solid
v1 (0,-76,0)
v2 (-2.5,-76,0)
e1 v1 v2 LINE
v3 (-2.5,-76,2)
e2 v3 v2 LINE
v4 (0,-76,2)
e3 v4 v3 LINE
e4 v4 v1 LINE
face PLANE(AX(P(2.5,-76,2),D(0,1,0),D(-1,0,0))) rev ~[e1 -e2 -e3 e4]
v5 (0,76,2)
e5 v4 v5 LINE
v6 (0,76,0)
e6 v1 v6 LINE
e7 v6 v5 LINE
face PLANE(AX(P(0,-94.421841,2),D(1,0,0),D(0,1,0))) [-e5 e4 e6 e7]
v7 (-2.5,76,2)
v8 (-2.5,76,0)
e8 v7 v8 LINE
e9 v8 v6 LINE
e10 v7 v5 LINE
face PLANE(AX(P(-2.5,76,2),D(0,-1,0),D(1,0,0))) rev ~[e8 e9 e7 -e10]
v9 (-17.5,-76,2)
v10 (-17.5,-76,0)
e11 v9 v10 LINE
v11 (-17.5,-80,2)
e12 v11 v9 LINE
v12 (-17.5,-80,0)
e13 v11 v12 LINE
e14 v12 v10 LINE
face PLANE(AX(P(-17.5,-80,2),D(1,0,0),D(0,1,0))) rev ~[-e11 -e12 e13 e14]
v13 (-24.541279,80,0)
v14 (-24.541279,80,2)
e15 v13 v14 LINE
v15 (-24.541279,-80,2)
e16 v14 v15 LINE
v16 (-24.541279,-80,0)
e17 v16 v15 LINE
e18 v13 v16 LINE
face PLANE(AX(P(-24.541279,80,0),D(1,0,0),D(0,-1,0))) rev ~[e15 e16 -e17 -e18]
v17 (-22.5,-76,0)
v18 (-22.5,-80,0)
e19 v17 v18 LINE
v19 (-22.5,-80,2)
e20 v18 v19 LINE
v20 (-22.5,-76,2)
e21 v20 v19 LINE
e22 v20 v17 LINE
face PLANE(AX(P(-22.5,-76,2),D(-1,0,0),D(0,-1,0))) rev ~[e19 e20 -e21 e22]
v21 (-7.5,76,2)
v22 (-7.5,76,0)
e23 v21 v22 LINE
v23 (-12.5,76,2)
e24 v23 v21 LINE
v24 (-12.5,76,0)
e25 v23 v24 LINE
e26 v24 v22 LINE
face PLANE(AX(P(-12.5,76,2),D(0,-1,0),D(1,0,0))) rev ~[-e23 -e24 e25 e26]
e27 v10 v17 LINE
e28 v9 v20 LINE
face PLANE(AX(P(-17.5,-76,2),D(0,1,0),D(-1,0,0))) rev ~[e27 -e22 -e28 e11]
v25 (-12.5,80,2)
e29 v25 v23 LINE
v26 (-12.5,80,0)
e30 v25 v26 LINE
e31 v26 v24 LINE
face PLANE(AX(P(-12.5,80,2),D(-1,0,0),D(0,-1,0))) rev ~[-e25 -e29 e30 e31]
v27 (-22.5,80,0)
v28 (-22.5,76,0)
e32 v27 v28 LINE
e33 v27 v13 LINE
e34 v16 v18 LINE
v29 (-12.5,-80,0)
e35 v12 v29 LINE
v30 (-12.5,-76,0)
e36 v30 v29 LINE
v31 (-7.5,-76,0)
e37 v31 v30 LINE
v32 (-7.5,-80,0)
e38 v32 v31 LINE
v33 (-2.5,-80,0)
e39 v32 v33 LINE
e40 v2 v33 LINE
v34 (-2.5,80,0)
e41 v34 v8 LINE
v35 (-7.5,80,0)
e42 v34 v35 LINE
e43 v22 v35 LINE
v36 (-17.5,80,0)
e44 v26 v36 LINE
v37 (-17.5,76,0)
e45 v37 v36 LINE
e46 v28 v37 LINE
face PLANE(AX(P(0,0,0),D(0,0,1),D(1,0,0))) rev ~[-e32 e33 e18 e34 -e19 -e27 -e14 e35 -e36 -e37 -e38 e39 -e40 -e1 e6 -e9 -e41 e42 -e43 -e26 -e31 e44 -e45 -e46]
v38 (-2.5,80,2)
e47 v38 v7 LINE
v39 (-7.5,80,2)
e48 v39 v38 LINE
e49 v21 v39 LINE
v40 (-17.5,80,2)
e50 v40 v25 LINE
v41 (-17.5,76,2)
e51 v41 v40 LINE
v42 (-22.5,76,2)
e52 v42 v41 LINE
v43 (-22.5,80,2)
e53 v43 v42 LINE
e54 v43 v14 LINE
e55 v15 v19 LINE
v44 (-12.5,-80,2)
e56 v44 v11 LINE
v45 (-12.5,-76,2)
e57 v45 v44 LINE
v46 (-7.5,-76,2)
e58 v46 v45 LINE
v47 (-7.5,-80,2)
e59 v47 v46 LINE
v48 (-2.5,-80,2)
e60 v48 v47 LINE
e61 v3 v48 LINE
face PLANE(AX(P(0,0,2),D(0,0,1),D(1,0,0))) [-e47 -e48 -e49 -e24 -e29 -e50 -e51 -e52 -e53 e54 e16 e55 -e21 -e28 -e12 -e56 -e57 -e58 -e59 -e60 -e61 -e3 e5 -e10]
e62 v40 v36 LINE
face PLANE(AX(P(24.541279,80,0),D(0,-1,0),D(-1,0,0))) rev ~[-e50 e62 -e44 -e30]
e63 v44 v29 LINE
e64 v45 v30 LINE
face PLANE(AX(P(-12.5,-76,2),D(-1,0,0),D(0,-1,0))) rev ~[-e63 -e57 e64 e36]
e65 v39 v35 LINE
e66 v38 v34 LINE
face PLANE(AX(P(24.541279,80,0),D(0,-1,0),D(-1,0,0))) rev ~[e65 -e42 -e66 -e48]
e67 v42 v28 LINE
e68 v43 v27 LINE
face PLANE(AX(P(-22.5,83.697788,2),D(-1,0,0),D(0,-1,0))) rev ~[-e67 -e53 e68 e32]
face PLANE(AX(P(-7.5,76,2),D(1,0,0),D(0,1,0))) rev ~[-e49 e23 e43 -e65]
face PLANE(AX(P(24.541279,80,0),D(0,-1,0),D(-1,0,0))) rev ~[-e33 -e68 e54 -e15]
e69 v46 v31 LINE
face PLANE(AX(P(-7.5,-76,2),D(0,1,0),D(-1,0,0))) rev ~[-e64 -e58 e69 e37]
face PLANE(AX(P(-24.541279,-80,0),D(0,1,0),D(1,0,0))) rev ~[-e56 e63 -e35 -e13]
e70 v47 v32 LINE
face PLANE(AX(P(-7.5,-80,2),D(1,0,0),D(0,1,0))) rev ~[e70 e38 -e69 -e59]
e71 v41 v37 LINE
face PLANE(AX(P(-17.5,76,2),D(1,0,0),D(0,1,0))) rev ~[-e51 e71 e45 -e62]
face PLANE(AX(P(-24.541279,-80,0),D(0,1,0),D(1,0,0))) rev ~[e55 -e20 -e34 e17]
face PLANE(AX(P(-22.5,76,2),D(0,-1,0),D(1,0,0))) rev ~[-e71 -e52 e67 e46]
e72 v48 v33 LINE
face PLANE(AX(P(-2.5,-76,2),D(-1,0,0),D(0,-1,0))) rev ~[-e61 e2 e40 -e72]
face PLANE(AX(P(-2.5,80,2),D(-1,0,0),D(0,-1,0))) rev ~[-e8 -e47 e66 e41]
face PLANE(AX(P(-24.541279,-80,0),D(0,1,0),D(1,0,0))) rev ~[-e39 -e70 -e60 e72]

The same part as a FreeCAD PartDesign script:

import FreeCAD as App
import Part
import Sketcher
from FreeCAD import Vector

doc = App.newDocument("Part")
params = doc.addObject("Spreadsheet::Sheet", "Params")
for row, (alias, value) in enumerate([
    ("sketch1_height", "160 mm"),
    ("pad1_length", "2 mm"),
    ("sketch2_width", "5 mm"),
    ("sketch2_height", "4 mm"),
    ("pocket1_length", "5 mm"),
    ("pocket2_length", "25 mm"),
], start=1):
    params.set(f"A{row}", alias)
    params.set(f"B{row}", "=" + value)
    params.setAlias(f"B{row}", alias)

body = doc.addObject("PartDesign::Body", "Body")

# Sketch on XY plane
sketch1 = body.newObject("Sketcher::SketchObject", "Sketch")
sketch1.AttachmentSupport = (doc.getObject("XY_Plane"), [""])
sketch1.MapMode = "FlatFace"
sketch1.addGeometry([
    Part.LineSegment(Vector(-24.541279, -80, 0), Vector(24.541279, -80, 0)),
    Part.LineSegment(Vector(24.541279, -80, 0), Vector(24.541279, 80, 0)),
    Part.LineSegment(Vector(24.541279, 80, 0), Vector(-24.541279, 80, 0)),
    Part.LineSegment(Vector(-24.541279, 80, 0), Vector(-24.541279, -80, 0)),
], False)
sketch1.addConstraint([
    Sketcher.Constraint("Coincident", 0, 2, 1, 1),
    Sketcher.Constraint("Coincident", 1, 2, 2, 1),
    Sketcher.Constraint("Coincident", 2, 2, 3, 1),
    Sketcher.Constraint("Coincident", 3, 2, 0, 1),
    Sketcher.Constraint("Horizontal", 0),
    Sketcher.Constraint("Vertical", 1),
    Sketcher.Constraint("Horizontal", 2),
    Sketcher.Constraint("Vertical", 3),
    Sketcher.Constraint("Symmetric", 0, 2, 2, 2, -1, 1),
    Sketcher.Constraint("DistanceY", 1, 1, 1, 2, 160.0),
    Sketcher.Constraint("DistanceX", 0, 1, 0, 2, 49.082558),
])
sketch1.setExpression("Constraints[9]", "Params.sketch1_height")
pad1 = body.newObject("PartDesign::Pad", "Pad")
pad1.Profile = sketch1
pad1.setExpression("Length", "Params.pad1_length")

# Sketch on XY plane
sketch2 = body.newObject("Sketcher::SketchObject", "Sketch001")
sketch2.AttachmentSupport = (doc.getObject("XY_Plane"), [""])
sketch2.MapMode = "FlatFace"
sketch2.AttachmentOffset = App.Placement(Vector(0, 0, 2), App.Rotation())
sketch2.addGeometry([
    Part.LineSegment(Vector(2.5, -76, 0), Vector(-2.5, -76, 0)),  # 0
    Part.LineSegment(Vector(-2.5, -76, 0), Vector(-2.5, -80, 0)),  # 1
    Part.LineSegment(Vector(-2.5, -80, 0), Vector(-7.5, -80, 0)),  # 2
    Part.LineSegment(Vector(-7.5, -80, 0), Vector(-7.5, -76, 0)),  # 3
    Part.LineSegment(Vector(-7.5, -76, 0), Vector(-12.5, -76, 0)),  # 4
    Part.LineSegment(Vector(-12.5, -76, 0), Vector(-12.5, -80, 0)),  # 5
    Part.LineSegment(Vector(-12.5, -80, 0), Vector(-17.5, -80, 0)),  # 6
    Part.LineSegment(Vector(-17.5, -80, 0), Vector(-17.5, -76, 0)),  # 7
    Part.LineSegment(Vector(-17.5, -76, 0), Vector(-22.5, -76, 0)),  # 8
    Part.LineSegment(Vector(-22.5, -76, 0), Vector(-22.5, -83.697788, 0)),  # 9
    Part.LineSegment(Vector(-22.5, -83.697788, 0), Vector(22.5, -83.697788, 0)),  # 10
    Part.LineSegment(Vector(22.5, -83.697788, 0), Vector(22.5, -76, 0)),  # 11
    Part.LineSegment(Vector(22.5, -76, 0), Vector(17.5, -76, 0)),  # 12
    Part.LineSegment(Vector(17.5, -76, 0), Vector(17.5, -80, 0)),  # 13
    Part.LineSegment(Vector(17.5, -80, 0), Vector(12.5, -80, 0)),  # 14
    Part.LineSegment(Vector(12.5, -80, 0), Vector(12.5, -76, 0)),  # 15
    Part.LineSegment(Vector(12.5, -76, 0), Vector(7.5, -76, 0)),  # 16
    Part.LineSegment(Vector(7.5, -76, 0), Vector(7.5, -80, 0)),  # 17
    Part.LineSegment(Vector(7.5, -80, 0), Vector(2.5, -80, 0)),  # 18
    Part.LineSegment(Vector(2.5, -80, 0), Vector(2.5, -76, 0)),  # 19
    Part.LineSegment(Vector(-22.5, 76, 0), Vector(-17.5, 76, 0)),  # 20
    Part.LineSegment(Vector(-17.5, 76, 0), Vector(-17.5, 80, 0)),  # 21
    Part.LineSegment(Vector(-17.5, 80, 0), Vector(-12.5, 80, 0)),  # 22
    Part.LineSegment(Vector(-12.5, 80, 0), Vector(-12.5, 76, 0)),  # 23
    Part.LineSegment(Vector(-12.5, 76, 0), Vector(-7.5, 76, 0)),  # 24
    Part.LineSegment(Vector(-7.5, 76, 0), Vector(-7.5, 80, 0)),  # 25
    Part.LineSegment(Vector(-7.5, 80, 0), Vector(-2.5, 80, 0)),  # 26
    Part.LineSegment(Vector(-2.5, 80, 0), Vector(-2.5, 76, 0)),  # 27
    Part.LineSegment(Vector(-2.5, 76, 0), Vector(2.5, 76, 0)),  # 28
    Part.LineSegment(Vector(2.5, 76, 0), Vector(2.5, 80, 0)),  # 29
    Part.LineSegment(Vector(2.5, 80, 0), Vector(7.5, 80, 0)),  # 30
    Part.LineSegment(Vector(7.5, 80, 0), Vector(7.5, 76, 0)),  # 31
    Part.LineSegment(Vector(7.5, 76, 0), Vector(12.5, 76, 0)),  # 32
    Part.LineSegment(Vector(12.5, 76, 0), Vector(12.5, 80, 0)),  # 33
    Part.LineSegment(Vector(12.5, 80, 0), Vector(17.5, 80, 0)),  # 34
    Part.LineSegment(Vector(17.5, 80, 0), Vector(17.5, 76, 0)),  # 35
    Part.LineSegment(Vector(17.5, 76, 0), Vector(22.5, 76, 0)),  # 36
    Part.LineSegment(Vector(22.5, 76, 0), Vector(22.5, 83.697788, 0)),  # 37
    Part.LineSegment(Vector(22.5, 83.697788, 0), Vector(-22.5, 83.697788, 0)),  # 38
    Part.LineSegment(Vector(-22.5, 83.697788, 0), Vector(-22.5, 76, 0)),  # 39
], False)
sketch2.addConstraint([
    Sketcher.Constraint("Coincident", 0, 2, 1, 1),
    Sketcher.Constraint("Coincident", 1, 2, 2, 1),
    Sketcher.Constraint("Coincident", 2, 2, 3, 1),
    Sketcher.Constraint("Coincident", 3, 2, 4, 1),
    Sketcher.Constraint("Coincident", 4, 2, 5, 1),
    Sketcher.Constraint("Coincident", 5, 2, 6, 1),
    Sketcher.Constraint("Coincident", 6, 2, 7, 1),
    Sketcher.Constraint("Coincident", 7, 2, 8, 1),
    Sketcher.Constraint("Coincident", 8, 2, 9, 1),
    Sketcher.Constraint("Coincident", 9, 2, 10, 1),
    Sketcher.Constraint("Coincident", 10, 2, 11, 1),
    Sketcher.Constraint("Coincident", 11, 2, 12, 1),
    Sketcher.Constraint("Coincident", 12, 2, 13, 1),
    Sketcher.Constraint("Coincident", 13, 2, 14, 1),
    Sketcher.Constraint("Coincident", 14, 2, 15, 1),
    Sketcher.Constraint("Coincident", 15, 2, 16, 1),
    Sketcher.Constraint("Coincident", 16, 2, 17, 1),
    Sketcher.Constraint("Coincident", 17, 2, 18, 1),
    Sketcher.Constraint("Coincident", 18, 2, 19, 1),
    Sketcher.Constraint("Coincident", 19, 2, 0, 1),
    Sketcher.Constraint("Coincident", 20, 2, 21, 1),
    Sketcher.Constraint("Coincident", 21, 2, 22, 1),
    Sketcher.Constraint("Coincident", 22, 2, 23, 1),
    Sketcher.Constraint("Coincident", 23, 2, 24, 1),
    Sketcher.Constraint("Coincident", 24, 2, 25, 1),
    Sketcher.Constraint("Coincident", 25, 2, 26, 1),
    Sketcher.Constraint("Coincident", 26, 2, 27, 1),
    Sketcher.Constraint("Coincident", 27, 2, 28, 1),
    Sketcher.Constraint("Coincident", 28, 2, 29, 1),
    Sketcher.Constraint("Coincident", 29, 2, 30, 1),
    Sketcher.Constraint("Coincident", 30, 2, 31, 1),
    Sketcher.Constraint("Coincident", 31, 2, 32, 1),
    Sketcher.Constraint("Coincident", 32, 2, 33, 1),
    Sketcher.Constraint("Coincident", 33, 2, 34, 1),
    Sketcher.Constraint("Coincident", 34, 2, 35, 1),
    Sketcher.Constraint("Coincident", 35, 2, 36, 1),
    Sketcher.Constraint("Coincident", 36, 2, 37, 1),
    Sketcher.Constraint("Coincident", 37, 2, 38, 1),
    Sketcher.Constraint("Coincident", 38, 2, 39, 1),
    Sketcher.Constraint("Coincident", 39, 2, 20, 1),
    Sketcher.Constraint("Horizontal", 0),
    Sketcher.Constraint("Vertical", 1),
    Sketcher.Constraint("Horizontal", 2),
    Sketcher.Constraint("Vertical", 3),
    Sketcher.Constraint("Horizontal", 4),
    Sketcher.Constraint("Vertical", 5),
    Sketcher.Constraint("Horizontal", 6),
    Sketcher.Constraint("Vertical", 7),
    Sketcher.Constraint("Horizontal", 8),
    Sketcher.Constraint("Vertical", 9),
    Sketcher.Constraint("Horizontal", 10),
    Sketcher.Constraint("Vertical", 11),
    Sketcher.Constraint("Horizontal", 12),
    Sketcher.Constraint("Vertical", 13),
    Sketcher.Constraint("Horizontal", 14),
    Sketcher.Constraint("Vertical", 15),
    Sketcher.Constraint("Horizontal", 16),
    Sketcher.Constraint("Vertical", 17),
    Sketcher.Constraint("Horizontal", 18),
    Sketcher.Constraint("Vertical", 19),
    Sketcher.Constraint("Horizontal", 20),
    Sketcher.Constraint("Vertical", 21),
    Sketcher.Constraint("Horizontal", 22),
    Sketcher.Constraint("Vertical", 23),
    Sketcher.Constraint("Horizontal", 24),
    Sketcher.Constraint("Vertical", 25),
    Sketcher.Constraint("Horizontal", 26),
    Sketcher.Constraint("Vertical", 27),
    Sketcher.Constraint("Horizontal", 28),
    Sketcher.Constraint("Vertical", 29),
    Sketcher.Constraint("Horizontal", 30),
    Sketcher.Constraint("Vertical", 31),
    Sketcher.Constraint("Horizontal", 32),
    Sketcher.Constraint("Vertical", 33),
    Sketcher.Constraint("Horizontal", 34),
    Sketcher.Constraint("Vertical", 35),
    Sketcher.Constraint("Horizontal", 36),
    Sketcher.Constraint("Vertical", 37),
    Sketcher.Constraint("Horizontal", 38),
    Sketcher.Constraint("Vertical", 39),
    Sketcher.Constraint("Symmetric", 12, 2, 20, 2, -1, 1),
    Sketcher.Constraint("Symmetric", 14, 2, 22, 2, -1, 1),
    Sketcher.Constraint("Symmetric", 16, 2, 24, 2, -1, 1),
    Sketcher.Constraint("Symmetric", 18, 2, 26, 2, -1, 1),
    Sketcher.Constraint("Symmetric", 0, 2, 28, 2, -1, 1),
    Sketcher.Constraint("Symmetric", 2, 2, 30, 2, -1, 1),
    Sketcher.Constraint("Symmetric", 4, 2, 32, 2, -1, 1),
    Sketcher.Constraint("Symmetric", 6, 2, 34, 2, -1, 1),
    Sketcher.Constraint("Symmetric", 8, 2, 36, 2, -1, 1),
    Sketcher.Constraint("Symmetric", 10, 2, 38, 2, -1, 1),
    Sketcher.Constraint("Symmetric", 8, 2, 11, 2, -2),
    Sketcher.Constraint("Symmetric", 6, 2, 13, 2, -2),
    Sketcher.Constraint("Symmetric", 4, 2, 15, 2, -2),
    Sketcher.Constraint("Symmetric", 2, 2, 17, 2, -2),
    Sketcher.Constraint("Horizontal", 0, 2, 3, 2),
    Sketcher.Constraint("Horizontal", 2, 2, 5, 2),
    Sketcher.Constraint("Horizontal", 4, 2, 7, 2),
    Sketcher.Constraint("Vertical", 1, 2, 26, 2),
    Sketcher.Constraint("Equal", 0, 2),
    Sketcher.Constraint("Equal", 2, 4),
    Sketcher.Constraint("Equal", 4, 6),
    Sketcher.Constraint("Equal", 6, 8),
    Sketcher.Constraint("DistanceX", 0, 2, 0, 1, 5.0),
    Sketcher.Constraint("DistanceY", 1, 2, 1, 1, 4.0),
    Sketcher.Constraint("DistanceY", 0, 2, -1, 1, 76.0),
    Sketcher.Constraint("DistanceY", 9, 2, 9, 1, 7.697788),
])
sketch2.setExpression("Constraints[102]", "Params.sketch2_width")
sketch2.setExpression("Constraints[103]", "Params.sketch2_height")
pocket1 = body.newObject("PartDesign::Pocket", "Pocket")
pocket1.Profile = sketch2
pocket1.setExpression("Length", "Params.pocket1_length")

# Sketch on XY plane
sketch3 = body.newObject("Sketcher::SketchObject", "Sketch002")
sketch3.AttachmentSupport = (doc.getObject("XY_Plane"), [""])
sketch3.MapMode = "FlatFace"
sketch3.AttachmentOffset = App.Placement(Vector(0, 0, 2), App.Rotation())
sketch3.addGeometry([
    Part.LineSegment(Vector(0, 110.679901, 0), Vector(0, -94.421841, 0)),
    Part.LineSegment(Vector(0, -94.421841, 0), Vector(28.972704, -94.421841, 0)),
    Part.LineSegment(Vector(28.972704, -94.421841, 0), Vector(28.972704, 110.679901, 0)),
    Part.LineSegment(Vector(28.972704, 110.679901, 0), Vector(0, 110.679901, 0)),
], False)
sketch3.addConstraint([
    Sketcher.Constraint("Coincident", 0, 2, 1, 1),
    Sketcher.Constraint("Coincident", 1, 2, 2, 1),
    Sketcher.Constraint("Coincident", 2, 2, 3, 1),
    Sketcher.Constraint("Coincident", 3, 2, 0, 1),
    Sketcher.Constraint("Vertical", 0),
    Sketcher.Constraint("Horizontal", 1),
    Sketcher.Constraint("Vertical", 2),
    Sketcher.Constraint("Horizontal", 3),
    Sketcher.Constraint("PointOnObject", 0, 2, -2),
    Sketcher.Constraint("DistanceY", -1, 1, 2, 2, 110.679901),
    Sketcher.Constraint("DistanceX", 1, 1, 1, 2, 28.972704),
    Sketcher.Constraint("DistanceY", 0, 2, 0, 1, 205.101743),
])
pocket2 = body.newObject("PartDesign::Pocket", "Pocket001")
pocket2.Profile = sketch3
pocket2.setExpression("Length", "Params.pocket2_length")

doc.recompute()
